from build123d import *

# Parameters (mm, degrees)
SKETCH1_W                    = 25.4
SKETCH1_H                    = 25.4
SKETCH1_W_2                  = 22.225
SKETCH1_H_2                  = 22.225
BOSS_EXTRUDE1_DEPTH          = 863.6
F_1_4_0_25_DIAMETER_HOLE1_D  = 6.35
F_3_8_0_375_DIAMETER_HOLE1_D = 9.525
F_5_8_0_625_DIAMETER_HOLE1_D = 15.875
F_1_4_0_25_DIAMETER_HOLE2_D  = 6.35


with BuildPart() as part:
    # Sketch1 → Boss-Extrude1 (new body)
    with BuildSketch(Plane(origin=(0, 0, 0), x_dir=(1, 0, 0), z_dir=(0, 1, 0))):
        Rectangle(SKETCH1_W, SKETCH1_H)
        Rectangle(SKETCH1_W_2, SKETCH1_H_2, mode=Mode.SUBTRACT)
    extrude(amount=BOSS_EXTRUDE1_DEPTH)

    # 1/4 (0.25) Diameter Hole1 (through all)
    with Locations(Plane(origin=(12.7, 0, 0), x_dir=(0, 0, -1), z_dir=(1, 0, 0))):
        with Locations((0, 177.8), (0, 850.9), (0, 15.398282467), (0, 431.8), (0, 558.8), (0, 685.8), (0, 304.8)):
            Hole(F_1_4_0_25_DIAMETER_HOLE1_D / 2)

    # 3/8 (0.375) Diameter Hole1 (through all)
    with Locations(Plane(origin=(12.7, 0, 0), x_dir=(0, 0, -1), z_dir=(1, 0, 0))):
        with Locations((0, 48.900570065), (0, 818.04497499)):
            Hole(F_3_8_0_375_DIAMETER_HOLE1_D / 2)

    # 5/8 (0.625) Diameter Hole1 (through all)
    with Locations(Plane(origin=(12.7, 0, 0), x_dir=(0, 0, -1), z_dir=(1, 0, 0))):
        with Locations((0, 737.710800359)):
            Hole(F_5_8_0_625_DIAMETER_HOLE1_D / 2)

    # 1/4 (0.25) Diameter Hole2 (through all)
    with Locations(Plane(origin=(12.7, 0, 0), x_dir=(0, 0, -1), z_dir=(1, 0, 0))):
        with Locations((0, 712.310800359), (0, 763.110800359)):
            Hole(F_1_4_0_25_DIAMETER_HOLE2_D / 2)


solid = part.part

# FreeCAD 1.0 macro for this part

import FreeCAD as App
import Part
import Sketcher
from FreeCAD import Vector
Q = App.Units.Quantity


def add_polygon(sketch, points):
    """Adds a closed chain of lines whose ends are joined by coincident constraints."""
    first, n = sketch.GeometryCount, len(points)
    for a, b in zip(points, points[1:] + points[:1]):
        sketch.addGeometry(Part.LineSegment(App.Vector(*a, 0), App.Vector(*b, 0)), False)
    for i in range(n):
        sketch.addConstraint(Sketcher.Constraint("Coincident", first + i, 2, first + (i + 1) % n, 1))

doc = App.newDocument("Part")
params = doc.addObject("Spreadsheet::Sheet", "Params")
for row, (alias, value) in enumerate([
    ("sketch1_width", "1 in"),
    ("sketch1_width2", "0.875 in"),
    ("pad1_length", "34 in"),
    ("sketch2_diameter", "0.25 in"),
    ("hole_diameter", "0.25 in"),
    ("sketch3_diameter", "0.375 in"),
    ("hole2_diameter", "0.375 in"),
    ("sketch4_diameter", "0.625 in"),
    ("hole3_diameter", "0.625 in"),
    ("sketch5_diameter", "0.25 in"),
    ("hole4_diameter", "0.25 in"),
], start=1):
    params.set(f"A{row}", alias)
    params.set(f"B{row}", "=" + value)
    params.setAlias(f"B{row}", alias)

body = doc.addObject("PartDesign::Body", "Body")

# Sketch on XZ plane
sketch1 = body.newObject("Sketcher::SketchObject", "Sketch")
sketch1.AttachmentSupport = (doc.getObject("XZ_Plane"), [""])
sketch1.MapMode = "FlatFace"
add_polygon(sketch1, [(-12.7, -12.7), (-12.7, 12.7), (12.7, 12.7), (12.7, -12.7)])  # lines 0-3
add_polygon(sketch1, [(11.1125, 11.1125), (-11.1125, 11.1125), (-11.1125, -11.1125), (11.1125, -11.1125)])  # lines 4-7
sketch1.addConstraint([
    Sketcher.Constraint("Vertical", 0),
    Sketcher.Constraint("Horizontal", 1),
    Sketcher.Constraint("Vertical", 2),
    Sketcher.Constraint("Horizontal", 3),
    Sketcher.Constraint("Horizontal", 4),
    Sketcher.Constraint("Vertical", 5),
    Sketcher.Constraint("Horizontal", 6),
    Sketcher.Constraint("Vertical", 7),
    Sketcher.Constraint("Symmetric", 0, 2, 2, 2, -1, 1),
    Sketcher.Constraint("Symmetric", 4, 2, 6, 2, -1, 1),
    Sketcher.Constraint("Equal", 3, 0),
    Sketcher.Constraint("Equal", 6, 5),
    Sketcher.Constraint("DistanceX", 1, 1, 1, 2, Q("1 in")),
    Sketcher.Constraint("DistanceX", 4, 2, 4, 1, Q("0.875 in")),
])
sketch1.setExpression("Constraints[20]", "Params.sketch1_width")
sketch1.setExpression("Constraints[21]", "Params.sketch1_width2")
pad1 = body.newObject("PartDesign::Pad", "Pad")
pad1.Profile = sketch1
pad1.setExpression("Length", "Params.pad1_length")
pad1.Reversed = True

# Sketch on YZ plane
sketch2 = body.newObject("Sketcher::SketchObject", "Sketch001")
sketch2.AttachmentSupport = (doc.getObject("YZ_Plane"), [""])
sketch2.MapMode = "FlatFace"
sketch2.AttachmentOffset = App.Placement(Vector(0, 0, 0.5 * 25.4), App.Rotation())
sketch2.addGeometry([
    Part.Circle(Vector(177.8, 0, 0), Vector(0, 0, 1), 3.175),  # 0
    Part.Circle(Vector(850.9, 0, 0), Vector(0, 0, 1), 3.175),  # 1
    Part.Circle(Vector(15.398282, 0, 0), Vector(0, 0, 1), 3.175),  # 2
    Part.Circle(Vector(431.8, 0, 0), Vector(0, 0, 1), 3.175),  # 3
    Part.Circle(Vector(558.8, 0, 0), Vector(0, 0, 1), 3.175),  # 4
    Part.Circle(Vector(685.8, 0, 0), Vector(0, 0, 1), 3.175),  # 5
    Part.Circle(Vector(304.8, 0, 0), Vector(0, 0, 1), 3.175),  # 6
], False)
sketch2.addConstraint([
    Sketcher.Constraint("Equal", 0, 1),
    Sketcher.Constraint("Equal", 1, 2),
    Sketcher.Constraint("Equal", 2, 3),
    Sketcher.Constraint("Equal", 3, 4),
    Sketcher.Constraint("Equal", 4, 5),
    Sketcher.Constraint("Equal", 5, 6),
    Sketcher.Constraint("PointOnObject", 0, 3, -1),
    Sketcher.Constraint("PointOnObject", 1, 3, -1),
    Sketcher.Constraint("PointOnObject", 2, 3, -1),
    Sketcher.Constraint("PointOnObject", 3, 3, -1),
    Sketcher.Constraint("PointOnObject", 4, 3, -1),
    Sketcher.Constraint("PointOnObject", 5, 3, -1),
    Sketcher.Constraint("PointOnObject", 6, 3, -1),
    Sketcher.Constraint("Diameter", 0, Q("0.25 in")),
    Sketcher.Constraint("DistanceX", -1, 1, 0, 3, Q("7 in")),
    Sketcher.Constraint("DistanceX", -1, 1, 3, 3, Q("17 in")),
    Sketcher.Constraint("DistanceX", -1, 1, 4, 3, Q("22 in")),
    Sketcher.Constraint("DistanceX", -1, 1, 5, 3, Q("27 in")),
    Sketcher.Constraint("DistanceX", -1, 1, 6, 3, Q("12 in")),
    Sketcher.Constraint("DistanceX", -1, 1, 1, 3, Q("33.5 in")),
    Sketcher.Constraint("DistanceX", -1, 1, 2, 3, 15.398282),
])
sketch2.setExpression("Constraints[13]", "Params.sketch2_diameter")
doc.recompute()
hole = body.newObject("PartDesign::Hole", "Hole")
hole.Profile = sketch2
hole.ThreadType = "None"
hole.setExpression("Diameter", "Params.hole_diameter")
hole.DepthType = "ThroughAll"

# Sketch on YZ plane
sketch3 = body.newObject("Sketcher::SketchObject", "Sketch002")
sketch3.AttachmentSupport = (doc.getObject("YZ_Plane"), [""])
sketch3.MapMode = "FlatFace"
sketch3.AttachmentOffset = App.Placement(Vector(0, 0, 0.5 * 25.4), App.Rotation())
sketch3.addGeometry([
    Part.Circle(Vector(48.90057, 0, 0), Vector(0, 0, 1), 4.7625),
    Part.Circle(Vector(818.044975, 0, 0), Vector(0, 0, 1), 4.7625),
], False)
sketch3.addConstraint([
    Sketcher.Constraint("Equal", 0, 1),
    Sketcher.Constraint("PointOnObject", 0, 3, -1),
    Sketcher.Constraint("PointOnObject", 1, 3, -1),
    Sketcher.Constraint("Diameter", 0, Q("0.375 in")),
    Sketcher.Constraint("DistanceX", -1, 1, 0, 3, 48.90057),
    Sketcher.Constraint("DistanceX", -1, 1, 1, 3, 818.044975),
])
sketch3.setExpression("Constraints[3]", "Params.sketch3_diameter")
doc.recompute()
hole2 = body.newObject("PartDesign::Hole", "Hole001")
hole2.Profile = sketch3
hole2.ThreadType = "None"
hole2.setExpression("Diameter", "Params.hole2_diameter")
hole2.DepthType = "ThroughAll"

# Sketch on YZ plane
sketch4 = body.newObject("Sketcher::SketchObject", "Sketch003")
sketch4.AttachmentSupport = (doc.getObject("YZ_Plane"), [""])
sketch4.MapMode = "FlatFace"
sketch4.AttachmentOffset = App.Placement(Vector(0, 0, 0.5 * 25.4), App.Rotation())
sketch4.addGeometry(Part.Circle(Vector(737.7108, 0, 0), Vector(0, 0, 1), 7.9375), False)
sketch4.addConstraint([
    Sketcher.Constraint("PointOnObject", 0, 3, -1),
    Sketcher.Constraint("Diameter", 0, Q("0.625 in")),
    Sketcher.Constraint("DistanceX", -1, 1, 0, 3, 737.7108),
])
sketch4.setExpression("Constraints[1]", "Params.sketch4_diameter")
doc.recompute()
hole3 = body.newObject("PartDesign::Hole", "Hole002")
hole3.Profile = sketch4
hole3.ThreadType = "None"
hole3.setExpression("Diameter", "Params.hole3_diameter")
hole3.DepthType = "ThroughAll"

# Sketch on YZ plane
sketch5 = body.newObject("Sketcher::SketchObject", "Sketch004")
sketch5.AttachmentSupport = (doc.getObject("YZ_Plane"), [""])
sketch5.MapMode = "FlatFace"
sketch5.AttachmentOffset = App.Placement(Vector(0, 0, 0.5 * 25.4), App.Rotation())
sketch5.addGeometry([
    Part.Circle(Vector(712.3108, 0, 0), Vector(0, 0, 1), 3.175),
    Part.Circle(Vector(763.1108, 0, 0), Vector(0, 0, 1), 3.175),
], False)
sketch5.addConstraint([
    Sketcher.Constraint("Equal", 0, 1),
    Sketcher.Constraint("PointOnObject", 0, 3, -1),
    Sketcher.Constraint("PointOnObject", 1, 3, -1),
    Sketcher.Constraint("Diameter", 0, Q("0.25 in")),
    Sketcher.Constraint("DistanceX", 0, 3, 1, 3, Q("2 in")),
    Sketcher.Constraint("DistanceX", -1, 1, 0, 3, 712.3108),
])
sketch5.setExpression("Constraints[3]", "Params.sketch5_diameter")
doc.recompute()
hole4 = body.newObject("PartDesign::Hole", "Hole003")
hole4.Profile = sketch5
hole4.ThreadType = "None"
hole4.setExpression("Diameter", "Params.hole4_diameter")
hole4.DepthType = "ThroughAll"

doc.recompute()
